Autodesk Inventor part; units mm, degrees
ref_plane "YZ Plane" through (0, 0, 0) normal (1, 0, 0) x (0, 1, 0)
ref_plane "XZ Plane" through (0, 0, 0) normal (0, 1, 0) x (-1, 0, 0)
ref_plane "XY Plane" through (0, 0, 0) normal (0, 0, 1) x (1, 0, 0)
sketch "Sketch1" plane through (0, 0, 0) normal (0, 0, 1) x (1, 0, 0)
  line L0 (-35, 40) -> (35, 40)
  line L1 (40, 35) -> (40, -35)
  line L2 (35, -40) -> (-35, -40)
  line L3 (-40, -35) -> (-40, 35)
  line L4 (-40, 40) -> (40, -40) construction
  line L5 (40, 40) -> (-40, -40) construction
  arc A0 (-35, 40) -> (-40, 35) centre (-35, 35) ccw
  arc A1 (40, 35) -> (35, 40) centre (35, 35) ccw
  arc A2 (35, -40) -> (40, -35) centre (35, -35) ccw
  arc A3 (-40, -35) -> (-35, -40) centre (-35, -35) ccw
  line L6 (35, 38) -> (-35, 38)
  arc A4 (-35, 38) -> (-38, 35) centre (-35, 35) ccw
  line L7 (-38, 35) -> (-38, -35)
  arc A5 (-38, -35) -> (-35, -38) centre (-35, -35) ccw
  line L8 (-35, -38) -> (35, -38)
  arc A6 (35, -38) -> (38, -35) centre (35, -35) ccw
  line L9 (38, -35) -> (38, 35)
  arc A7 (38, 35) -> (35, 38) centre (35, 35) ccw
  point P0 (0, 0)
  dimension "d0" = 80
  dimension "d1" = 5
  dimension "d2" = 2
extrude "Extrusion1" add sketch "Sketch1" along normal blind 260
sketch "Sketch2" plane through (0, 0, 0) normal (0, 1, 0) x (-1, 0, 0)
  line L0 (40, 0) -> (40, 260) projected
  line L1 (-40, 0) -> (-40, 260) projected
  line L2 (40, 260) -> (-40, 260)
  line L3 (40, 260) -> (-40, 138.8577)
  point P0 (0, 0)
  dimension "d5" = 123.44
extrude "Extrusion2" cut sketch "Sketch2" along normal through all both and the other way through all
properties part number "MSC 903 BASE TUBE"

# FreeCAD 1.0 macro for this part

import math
import FreeCAD as App
import Part
import Sketcher
from FreeCAD import Vector
Q = App.Units.Quantity

doc = App.newDocument("Part")
body = doc.addObject("PartDesign::Body", "Body")

sketch1 = body.newObject("Sketcher::SketchObject", "Sketch")
sketch1.AttachmentSupport = (doc.getObject("XY_Plane"), [""])
sketch1.MapMode = "FlatFace"
sketch1.addGeometry([
    Part.LineSegment(Vector(35, 40, 0), Vector(-35, 40, 0)),
    Part.ArcOfCircle(Part.Circle(Vector(-35, 35, 0), Vector(0, 0, 1), 5), math.radians(90), math.radians(180)),
    Part.LineSegment(Vector(-40, 35, 0), Vector(-40, -35, 0)),
    Part.ArcOfCircle(Part.Circle(Vector(-35, -35, 0), Vector(0, 0, 1), 5), math.radians(180), math.radians(270)),
    Part.LineSegment(Vector(-35, -40, 0), Vector(35, -40, 0)),
    Part.ArcOfCircle(Part.Circle(Vector(35, -35, 0), Vector(0, 0, 1), 5), math.radians(-90), math.radians(0)),
    Part.LineSegment(Vector(40, -35, 0), Vector(40, 35, 0)),
    Part.ArcOfCircle(Part.Circle(Vector(35, 35, 0), Vector(0, 0, 1), 5), math.radians(0), math.radians(90)),
    Part.LineSegment(Vector(-35, 38, 0), Vector(35, 38, 0)),
    Part.ArcOfCircle(Part.Circle(Vector(35, 35, 0), Vector(0, 0, 1), 3), math.radians(0), math.radians(90)),
    Part.LineSegment(Vector(38, 35, 0), Vector(38, -35, 0)),
    Part.ArcOfCircle(Part.Circle(Vector(35, -35, 0), Vector(0, 0, 1), 3), math.radians(-90), math.radians(0)),
    Part.LineSegment(Vector(35, -38, 0), Vector(-35, -38, 0)),
    Part.ArcOfCircle(Part.Circle(Vector(-35, -35, 0), Vector(0, 0, 1), 3), math.radians(180), math.radians(270)),
    Part.LineSegment(Vector(-38, -35, 0), Vector(-38, 35, 0)),
    Part.ArcOfCircle(Part.Circle(Vector(-35, 35, 0), Vector(0, 0, 1), 3), math.radians(90), math.radians(180)),
], False)
sketch1.addConstraint([
    Sketcher.Constraint("Tangent", 0, 2, 1, 1),
    Sketcher.Constraint("Tangent", 1, 2, 2, 1),
    Sketcher.Constraint("Tangent", 2, 2, 3, 1),
    Sketcher.Constraint("Tangent", 3, 2, 4, 1),
    Sketcher.Constraint("Tangent", 4, 2, 5, 1),
    Sketcher.Constraint("Tangent", 5, 2, 6, 1),
    Sketcher.Constraint("Tangent", 6, 2, 7, 1),
    Sketcher.Constraint("Tangent", 7, 2, 0, 1),
    Sketcher.Constraint("Tangent", 8, 2, 9, 2),
    Sketcher.Constraint("Tangent", 9, 1, 10, 1),
    Sketcher.Constraint("Tangent", 10, 2, 11, 2),
    Sketcher.Constraint("Tangent", 11, 1, 12, 1),
    Sketcher.Constraint("Tangent", 12, 2, 13, 2),
    Sketcher.Constraint("Tangent", 13, 1, 14, 1),
    Sketcher.Constraint("Tangent", 14, 2, 15, 2),
    Sketcher.Constraint("Tangent", 15, 1, 8, 1),
    Sketcher.Constraint("Horizontal", 0),
    Sketcher.Constraint("Vertical", 2),
    Sketcher.Constraint("Horizontal", 4),
    Sketcher.Constraint("Vertical", 6),
    Sketcher.Constraint("Horizontal", 8),
    Sketcher.Constraint("Vertical", 10),
    Sketcher.Constraint("Horizontal", 12),
    Sketcher.Constraint("Vertical", 14),
    Sketcher.Constraint("Coincident", 9, 3, 7, 3),
    Sketcher.Constraint("Coincident", 11, 3, 5, 3),
    Sketcher.Constraint("Coincident", 13, 3, 3, 3),
    Sketcher.Constraint("Equal", 1, 3),
    Sketcher.Constraint("Equal", 3, 5),
    Sketcher.Constraint("Equal", 5, 7),
    Sketcher.Constraint("Equal", 13, 15),
    Sketcher.Constraint("Symmetric", 1, 3, 5, 3, -1, 1),
    Sketcher.Constraint("Equal", 12, 2),
    Sketcher.Constraint("Radius", 1, Q("5 mm")),
    Sketcher.Constraint("Radius", 9, Q("3 mm")),
    Sketcher.Constraint("DistanceX", 0, 2, 0, 1, Q("70 mm")),
])
pad1 = body.newObject("PartDesign::Pad", "Pad")
pad1.Profile = sketch1
pad1.Length = 260

sketch2 = body.newObject("Sketcher::SketchObject", "Sketch001")
sketch2.AttachmentSupport = (doc.getObject("XZ_Plane"), [""])
sketch2.MapMode = "FlatFace"
sketch2.addGeometry([
    Part.LineSegment(Vector(40, 260, 0), Vector(40, 139, 0)),
    Part.LineSegment(Vector(40, 139, 0), Vector(-40, 260, 0)),
    Part.LineSegment(Vector(-40, 260, 0), Vector(40, 260, 0)),
], False)
sketch2.addConstraint([
    Sketcher.Constraint("Coincident", 0, 2, 1, 1),
    Sketcher.Constraint("Coincident", 1, 2, 2, 1),
    Sketcher.Constraint("Coincident", 2, 2, 0, 1),
    Sketcher.Constraint("Vertical", 0),
    Sketcher.Constraint("Horizontal", 2),
    Sketcher.Constraint("Angle", 1, Q("123.44 deg")),
    Sketcher.Constraint("DistanceX", 2, 1, 2, 2, Q("80 mm")),
    Sketcher.Constraint("DistanceX", -1, 1, 0, 2, Q("40 mm")),
    Sketcher.Constraint("DistanceY", -1, 1, 1, 2, Q("260 mm")),
])
pocket1 = body.newObject("PartDesign::Pocket", "Pocket")
pocket1.Profile = sketch2
pocket1.Type = "ThroughAll"
pocket1.Midplane = True

doc.recompute()
